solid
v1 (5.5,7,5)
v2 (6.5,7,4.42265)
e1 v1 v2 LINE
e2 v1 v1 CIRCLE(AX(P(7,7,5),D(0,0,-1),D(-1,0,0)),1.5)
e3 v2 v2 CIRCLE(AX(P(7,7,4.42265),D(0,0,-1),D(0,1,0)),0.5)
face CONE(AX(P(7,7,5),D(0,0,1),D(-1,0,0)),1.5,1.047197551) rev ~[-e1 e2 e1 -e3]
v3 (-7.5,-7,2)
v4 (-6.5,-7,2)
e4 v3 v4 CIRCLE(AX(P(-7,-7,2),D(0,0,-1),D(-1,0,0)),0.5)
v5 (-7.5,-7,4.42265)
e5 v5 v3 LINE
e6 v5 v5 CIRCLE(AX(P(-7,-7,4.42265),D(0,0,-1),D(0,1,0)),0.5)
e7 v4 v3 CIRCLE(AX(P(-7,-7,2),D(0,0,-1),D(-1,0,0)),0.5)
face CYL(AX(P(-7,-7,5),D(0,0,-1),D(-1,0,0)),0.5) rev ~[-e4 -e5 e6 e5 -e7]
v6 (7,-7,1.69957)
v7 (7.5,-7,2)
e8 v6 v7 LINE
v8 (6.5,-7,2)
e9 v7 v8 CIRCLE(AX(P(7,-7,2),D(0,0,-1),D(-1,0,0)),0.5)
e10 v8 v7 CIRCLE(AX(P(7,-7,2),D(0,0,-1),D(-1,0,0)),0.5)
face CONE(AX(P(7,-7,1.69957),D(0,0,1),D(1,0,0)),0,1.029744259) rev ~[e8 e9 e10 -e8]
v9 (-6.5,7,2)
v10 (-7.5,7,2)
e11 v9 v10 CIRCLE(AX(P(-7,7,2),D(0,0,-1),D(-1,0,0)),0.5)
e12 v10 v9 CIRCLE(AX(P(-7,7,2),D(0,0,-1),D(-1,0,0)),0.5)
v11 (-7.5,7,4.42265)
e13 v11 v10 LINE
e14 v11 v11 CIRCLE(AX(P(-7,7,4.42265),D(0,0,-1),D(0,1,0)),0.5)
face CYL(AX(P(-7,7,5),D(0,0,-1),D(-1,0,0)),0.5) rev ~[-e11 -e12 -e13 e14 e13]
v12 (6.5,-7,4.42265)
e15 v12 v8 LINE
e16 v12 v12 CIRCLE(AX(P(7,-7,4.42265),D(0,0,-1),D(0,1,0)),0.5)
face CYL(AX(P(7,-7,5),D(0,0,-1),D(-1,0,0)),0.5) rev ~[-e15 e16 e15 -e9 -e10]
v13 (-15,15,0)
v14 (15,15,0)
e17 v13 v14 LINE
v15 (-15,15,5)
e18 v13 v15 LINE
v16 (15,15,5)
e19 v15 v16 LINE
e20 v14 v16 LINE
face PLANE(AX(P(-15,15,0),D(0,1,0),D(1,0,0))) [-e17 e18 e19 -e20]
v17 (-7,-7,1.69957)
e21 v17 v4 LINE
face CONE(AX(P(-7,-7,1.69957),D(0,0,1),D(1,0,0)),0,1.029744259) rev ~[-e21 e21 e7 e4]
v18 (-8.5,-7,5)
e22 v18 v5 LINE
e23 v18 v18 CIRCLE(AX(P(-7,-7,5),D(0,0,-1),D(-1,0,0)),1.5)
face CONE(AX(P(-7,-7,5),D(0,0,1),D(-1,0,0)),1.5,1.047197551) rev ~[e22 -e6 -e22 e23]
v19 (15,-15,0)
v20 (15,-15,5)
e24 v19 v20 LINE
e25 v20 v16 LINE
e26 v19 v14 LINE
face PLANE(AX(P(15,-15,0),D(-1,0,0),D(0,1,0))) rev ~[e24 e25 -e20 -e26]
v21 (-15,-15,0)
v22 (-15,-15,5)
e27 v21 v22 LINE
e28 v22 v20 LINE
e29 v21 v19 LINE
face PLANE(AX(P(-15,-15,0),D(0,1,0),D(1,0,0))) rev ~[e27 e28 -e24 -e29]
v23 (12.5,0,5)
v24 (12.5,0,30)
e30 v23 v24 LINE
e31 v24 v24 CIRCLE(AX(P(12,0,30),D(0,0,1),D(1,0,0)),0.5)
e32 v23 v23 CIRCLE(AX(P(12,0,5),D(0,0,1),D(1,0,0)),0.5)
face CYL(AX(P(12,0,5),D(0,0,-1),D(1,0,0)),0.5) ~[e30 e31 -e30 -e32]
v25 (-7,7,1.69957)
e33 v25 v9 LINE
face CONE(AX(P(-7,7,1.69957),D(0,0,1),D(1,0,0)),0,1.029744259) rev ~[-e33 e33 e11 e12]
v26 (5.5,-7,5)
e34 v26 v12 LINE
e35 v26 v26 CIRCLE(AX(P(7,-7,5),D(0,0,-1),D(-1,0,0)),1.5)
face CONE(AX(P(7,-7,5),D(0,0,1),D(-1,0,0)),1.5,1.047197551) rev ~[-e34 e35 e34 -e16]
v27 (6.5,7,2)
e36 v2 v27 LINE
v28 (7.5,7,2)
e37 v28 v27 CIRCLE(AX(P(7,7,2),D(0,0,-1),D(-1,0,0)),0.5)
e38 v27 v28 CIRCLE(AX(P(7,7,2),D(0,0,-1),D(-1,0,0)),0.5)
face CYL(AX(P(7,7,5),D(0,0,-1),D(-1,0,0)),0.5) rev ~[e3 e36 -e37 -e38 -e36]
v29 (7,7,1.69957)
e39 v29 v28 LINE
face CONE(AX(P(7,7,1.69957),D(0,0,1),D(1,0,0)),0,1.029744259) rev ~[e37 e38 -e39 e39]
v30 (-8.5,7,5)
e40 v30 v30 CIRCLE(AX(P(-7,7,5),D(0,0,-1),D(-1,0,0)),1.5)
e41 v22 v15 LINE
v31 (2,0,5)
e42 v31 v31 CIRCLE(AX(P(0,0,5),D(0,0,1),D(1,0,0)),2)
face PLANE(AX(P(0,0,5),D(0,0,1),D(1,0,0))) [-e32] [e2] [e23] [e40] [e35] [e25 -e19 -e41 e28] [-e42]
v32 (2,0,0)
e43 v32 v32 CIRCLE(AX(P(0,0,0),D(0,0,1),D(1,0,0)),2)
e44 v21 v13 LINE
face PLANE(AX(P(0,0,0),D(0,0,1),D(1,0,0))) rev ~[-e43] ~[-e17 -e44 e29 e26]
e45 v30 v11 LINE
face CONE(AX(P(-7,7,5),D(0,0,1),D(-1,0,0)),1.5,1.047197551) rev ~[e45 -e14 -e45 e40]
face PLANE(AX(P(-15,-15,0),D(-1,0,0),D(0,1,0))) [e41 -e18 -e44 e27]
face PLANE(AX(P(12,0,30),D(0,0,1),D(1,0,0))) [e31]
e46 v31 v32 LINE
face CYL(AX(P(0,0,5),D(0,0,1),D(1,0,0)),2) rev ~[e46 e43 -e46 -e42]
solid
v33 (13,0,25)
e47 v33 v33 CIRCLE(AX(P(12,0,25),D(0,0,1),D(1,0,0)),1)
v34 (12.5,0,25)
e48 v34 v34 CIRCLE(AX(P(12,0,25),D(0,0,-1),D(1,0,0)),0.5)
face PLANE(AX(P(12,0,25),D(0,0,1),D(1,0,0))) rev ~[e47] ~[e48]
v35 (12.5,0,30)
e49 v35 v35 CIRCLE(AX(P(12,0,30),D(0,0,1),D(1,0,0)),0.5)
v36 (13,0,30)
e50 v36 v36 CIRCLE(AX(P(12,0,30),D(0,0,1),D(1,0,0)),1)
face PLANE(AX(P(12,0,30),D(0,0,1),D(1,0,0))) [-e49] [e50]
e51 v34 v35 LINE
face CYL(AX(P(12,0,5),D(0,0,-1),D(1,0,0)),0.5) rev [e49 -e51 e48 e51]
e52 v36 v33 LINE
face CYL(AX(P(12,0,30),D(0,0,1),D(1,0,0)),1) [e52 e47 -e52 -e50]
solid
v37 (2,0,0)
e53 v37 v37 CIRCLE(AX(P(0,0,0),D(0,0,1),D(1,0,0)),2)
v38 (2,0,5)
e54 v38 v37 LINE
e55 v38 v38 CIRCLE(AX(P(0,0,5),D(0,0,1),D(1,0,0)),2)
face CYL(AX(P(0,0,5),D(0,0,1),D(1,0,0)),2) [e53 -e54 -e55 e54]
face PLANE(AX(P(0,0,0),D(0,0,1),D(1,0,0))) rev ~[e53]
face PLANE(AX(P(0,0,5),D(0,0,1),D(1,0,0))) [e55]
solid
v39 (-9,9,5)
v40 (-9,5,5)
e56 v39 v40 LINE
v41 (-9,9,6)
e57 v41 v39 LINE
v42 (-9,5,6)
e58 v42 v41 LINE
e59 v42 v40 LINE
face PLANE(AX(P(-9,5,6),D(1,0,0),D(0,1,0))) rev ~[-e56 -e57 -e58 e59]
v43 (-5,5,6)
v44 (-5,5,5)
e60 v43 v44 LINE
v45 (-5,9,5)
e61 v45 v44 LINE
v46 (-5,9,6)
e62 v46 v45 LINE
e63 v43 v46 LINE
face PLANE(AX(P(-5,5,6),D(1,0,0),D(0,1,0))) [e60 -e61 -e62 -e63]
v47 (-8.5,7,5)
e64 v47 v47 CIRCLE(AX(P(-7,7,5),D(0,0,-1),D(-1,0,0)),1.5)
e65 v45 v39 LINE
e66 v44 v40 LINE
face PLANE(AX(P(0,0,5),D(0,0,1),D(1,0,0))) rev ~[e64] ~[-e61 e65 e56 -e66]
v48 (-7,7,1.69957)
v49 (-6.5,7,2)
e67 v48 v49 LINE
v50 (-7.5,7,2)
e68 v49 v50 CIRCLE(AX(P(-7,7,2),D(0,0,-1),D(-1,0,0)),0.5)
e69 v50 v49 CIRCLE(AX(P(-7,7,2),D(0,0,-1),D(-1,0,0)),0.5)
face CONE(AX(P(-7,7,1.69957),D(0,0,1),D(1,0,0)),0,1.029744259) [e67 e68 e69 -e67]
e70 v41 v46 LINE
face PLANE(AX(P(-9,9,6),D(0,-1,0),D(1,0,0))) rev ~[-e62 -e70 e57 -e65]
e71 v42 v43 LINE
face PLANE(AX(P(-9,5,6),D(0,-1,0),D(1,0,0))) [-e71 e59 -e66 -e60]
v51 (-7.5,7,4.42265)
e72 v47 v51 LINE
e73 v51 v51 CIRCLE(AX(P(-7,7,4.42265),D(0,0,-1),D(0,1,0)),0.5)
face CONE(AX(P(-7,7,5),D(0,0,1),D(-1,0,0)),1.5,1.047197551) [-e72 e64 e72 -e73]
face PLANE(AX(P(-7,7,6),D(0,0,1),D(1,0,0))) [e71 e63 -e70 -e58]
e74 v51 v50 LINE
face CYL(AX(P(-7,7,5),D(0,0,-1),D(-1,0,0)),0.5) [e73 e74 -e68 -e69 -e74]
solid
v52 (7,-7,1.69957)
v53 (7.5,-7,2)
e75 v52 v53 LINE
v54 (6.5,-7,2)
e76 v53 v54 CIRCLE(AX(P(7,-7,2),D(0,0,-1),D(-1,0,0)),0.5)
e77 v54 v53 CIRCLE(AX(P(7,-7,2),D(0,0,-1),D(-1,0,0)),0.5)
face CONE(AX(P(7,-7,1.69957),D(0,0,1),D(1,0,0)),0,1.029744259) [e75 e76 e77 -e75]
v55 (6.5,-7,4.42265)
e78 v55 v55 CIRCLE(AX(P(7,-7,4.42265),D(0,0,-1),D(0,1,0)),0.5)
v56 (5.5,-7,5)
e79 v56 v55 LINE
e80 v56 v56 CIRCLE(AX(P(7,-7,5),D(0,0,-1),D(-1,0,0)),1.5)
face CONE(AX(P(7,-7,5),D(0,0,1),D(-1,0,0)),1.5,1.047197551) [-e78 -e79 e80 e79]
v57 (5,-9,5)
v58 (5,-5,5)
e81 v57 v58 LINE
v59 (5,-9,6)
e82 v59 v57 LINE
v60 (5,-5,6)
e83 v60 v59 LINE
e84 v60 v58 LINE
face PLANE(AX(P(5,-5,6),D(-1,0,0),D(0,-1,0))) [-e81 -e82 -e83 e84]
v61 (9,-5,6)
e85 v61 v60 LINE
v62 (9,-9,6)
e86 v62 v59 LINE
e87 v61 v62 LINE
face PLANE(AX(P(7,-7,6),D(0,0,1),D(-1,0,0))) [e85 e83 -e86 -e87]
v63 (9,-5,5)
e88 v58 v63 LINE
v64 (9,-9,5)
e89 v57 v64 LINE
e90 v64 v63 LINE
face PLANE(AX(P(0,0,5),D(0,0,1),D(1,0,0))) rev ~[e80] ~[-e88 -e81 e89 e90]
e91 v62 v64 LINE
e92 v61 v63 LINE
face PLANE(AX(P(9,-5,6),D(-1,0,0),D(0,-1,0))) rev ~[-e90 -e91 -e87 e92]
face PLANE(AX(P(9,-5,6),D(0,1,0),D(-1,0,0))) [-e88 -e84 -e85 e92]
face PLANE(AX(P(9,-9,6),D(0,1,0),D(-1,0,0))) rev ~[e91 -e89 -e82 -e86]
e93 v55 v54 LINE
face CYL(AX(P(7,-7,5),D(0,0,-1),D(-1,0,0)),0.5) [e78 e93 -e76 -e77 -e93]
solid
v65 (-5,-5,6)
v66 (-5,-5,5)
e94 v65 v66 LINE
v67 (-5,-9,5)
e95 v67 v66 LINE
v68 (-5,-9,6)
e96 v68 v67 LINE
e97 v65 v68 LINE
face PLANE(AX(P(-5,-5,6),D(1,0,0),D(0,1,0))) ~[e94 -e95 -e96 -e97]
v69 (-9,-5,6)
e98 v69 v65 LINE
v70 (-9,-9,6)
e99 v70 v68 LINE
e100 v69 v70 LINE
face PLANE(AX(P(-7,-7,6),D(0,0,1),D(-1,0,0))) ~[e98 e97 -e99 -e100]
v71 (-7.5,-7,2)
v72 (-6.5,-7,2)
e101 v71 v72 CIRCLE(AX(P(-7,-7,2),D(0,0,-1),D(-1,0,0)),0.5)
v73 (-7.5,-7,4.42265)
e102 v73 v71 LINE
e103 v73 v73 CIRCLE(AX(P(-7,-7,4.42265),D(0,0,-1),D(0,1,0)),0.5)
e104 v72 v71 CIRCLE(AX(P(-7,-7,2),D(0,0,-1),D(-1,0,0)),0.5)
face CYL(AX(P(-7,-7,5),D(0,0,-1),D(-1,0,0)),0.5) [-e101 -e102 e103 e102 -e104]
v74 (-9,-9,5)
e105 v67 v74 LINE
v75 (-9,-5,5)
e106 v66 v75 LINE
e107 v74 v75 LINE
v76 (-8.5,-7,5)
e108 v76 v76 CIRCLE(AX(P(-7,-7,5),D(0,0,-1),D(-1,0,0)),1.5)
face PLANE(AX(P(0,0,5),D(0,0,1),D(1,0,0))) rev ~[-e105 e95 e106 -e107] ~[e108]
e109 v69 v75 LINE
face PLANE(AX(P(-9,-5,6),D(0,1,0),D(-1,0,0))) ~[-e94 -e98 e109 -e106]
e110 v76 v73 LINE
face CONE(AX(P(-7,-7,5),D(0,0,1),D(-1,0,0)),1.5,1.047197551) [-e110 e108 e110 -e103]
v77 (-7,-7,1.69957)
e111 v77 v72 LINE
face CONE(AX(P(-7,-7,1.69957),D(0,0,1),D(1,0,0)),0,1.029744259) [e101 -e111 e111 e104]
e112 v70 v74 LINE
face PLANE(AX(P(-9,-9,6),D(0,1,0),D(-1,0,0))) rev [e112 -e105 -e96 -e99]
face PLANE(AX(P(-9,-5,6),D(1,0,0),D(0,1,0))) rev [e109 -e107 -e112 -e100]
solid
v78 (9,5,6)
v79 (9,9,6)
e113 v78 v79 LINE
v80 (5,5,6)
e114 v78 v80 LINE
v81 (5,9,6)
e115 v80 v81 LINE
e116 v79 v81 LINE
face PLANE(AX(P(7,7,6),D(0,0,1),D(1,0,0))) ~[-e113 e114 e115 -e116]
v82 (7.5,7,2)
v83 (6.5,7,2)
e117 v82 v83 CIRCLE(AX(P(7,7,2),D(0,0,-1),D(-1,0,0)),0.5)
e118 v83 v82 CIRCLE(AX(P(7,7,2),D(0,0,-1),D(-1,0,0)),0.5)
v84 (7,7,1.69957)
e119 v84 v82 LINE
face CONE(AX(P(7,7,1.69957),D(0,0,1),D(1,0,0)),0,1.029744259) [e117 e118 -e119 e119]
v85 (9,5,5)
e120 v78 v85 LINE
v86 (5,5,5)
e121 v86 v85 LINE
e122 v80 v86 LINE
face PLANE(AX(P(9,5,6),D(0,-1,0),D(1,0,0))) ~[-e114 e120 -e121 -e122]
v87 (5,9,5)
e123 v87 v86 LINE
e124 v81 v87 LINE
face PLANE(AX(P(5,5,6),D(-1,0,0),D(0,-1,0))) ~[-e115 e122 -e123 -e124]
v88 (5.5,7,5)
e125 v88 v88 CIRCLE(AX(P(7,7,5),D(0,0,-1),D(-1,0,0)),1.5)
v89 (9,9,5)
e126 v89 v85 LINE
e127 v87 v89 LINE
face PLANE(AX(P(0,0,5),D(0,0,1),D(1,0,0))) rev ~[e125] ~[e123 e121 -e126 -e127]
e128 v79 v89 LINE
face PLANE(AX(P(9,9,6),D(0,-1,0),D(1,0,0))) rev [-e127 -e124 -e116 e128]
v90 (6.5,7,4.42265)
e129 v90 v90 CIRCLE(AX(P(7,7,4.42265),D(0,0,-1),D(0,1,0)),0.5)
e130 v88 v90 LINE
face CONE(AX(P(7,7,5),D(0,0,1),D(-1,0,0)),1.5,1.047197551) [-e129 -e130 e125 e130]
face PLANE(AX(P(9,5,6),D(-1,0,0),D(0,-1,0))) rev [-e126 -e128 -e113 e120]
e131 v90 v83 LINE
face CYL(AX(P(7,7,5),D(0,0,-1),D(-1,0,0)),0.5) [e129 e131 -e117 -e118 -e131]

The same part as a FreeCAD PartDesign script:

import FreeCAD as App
import Part
import Sketcher

V = App.Vector
Q = App.Units.Quantity

doc = App.newDocument("Part")
body = doc.addObject("PartDesign::Body", "Body")

# Sketch on XY plane
sketch1 = body.newObject("Sketcher::SketchObject", "Sketch")
sketch1.AttachmentSupport = (doc.getObject("XY_Plane"), [""])
sketch1.MapMode = "FlatFace"
sketch1.addGeometry([
    Part.LineSegment(V(-15, 15, 0), V(-15, -15, 0)),
    Part.LineSegment(V(-15, -15, 0), V(15, -15, 0)),
    Part.LineSegment(V(15, -15, 0), V(15, 15, 0)),
    Part.LineSegment(V(15, 15, 0), V(-15, 15, 0)),
], False)
sketch1.addConstraint([
    Sketcher.Constraint("Coincident", 0, 2, 1, 1),
    Sketcher.Constraint("Coincident", 1, 2, 2, 1),
    Sketcher.Constraint("Coincident", 2, 2, 3, 1),
    Sketcher.Constraint("Coincident", 3, 2, 0, 1),
    Sketcher.Constraint("Vertical", 0),
    Sketcher.Constraint("Horizontal", 1),
    Sketcher.Constraint("Vertical", 2),
    Sketcher.Constraint("Horizontal", 3),
    Sketcher.Constraint("Symmetric", 0, 2, 2, 2, -1, 1),
    Sketcher.Constraint("Equal", 3, 0),
    Sketcher.Constraint("DistanceX", 1, 1, 1, 2, Q("30 mm")),
])
pad1 = body.newObject("PartDesign::Pad", "Pad")
pad1.Profile = sketch1
pad1.Length = 5

# Sketch on XY plane
sketch2 = body.newObject("Sketcher::SketchObject", "Sketch001")
sketch2.AttachmentSupport = (doc.getObject("XY_Plane"), [""])
sketch2.MapMode = "FlatFace"
sketch2.AttachmentOffset = App.Placement(V(0, 0, 5), App.Rotation())
sketch2.addGeometry([
    Part.Circle(V(-7, 7, 0), V(0, 0, 1), 0.5),
    Part.Circle(V(-7, -7, 0), V(0, 0, 1), 0.5),
    Part.Circle(V(7, -7, 0), V(0, 0, 1), 0.5),
    Part.Circle(V(7, 7, 0), V(0, 0, 1), 0.5),
], False)
sketch2.addConstraint([
    Sketcher.Constraint("Equal", 0, 1),
    Sketcher.Constraint("Equal", 1, 2),
    Sketcher.Constraint("Equal", 2, 3),
    Sketcher.Constraint("Symmetric", 0, 3, 2, 3, -1, 1),
    Sketcher.Constraint("Symmetric", 1, 3, 3, 3, -1, 1),
    Sketcher.Constraint("Symmetric", 1, 3, 2, 3, -2),
    Sketcher.Constraint("Diameter", 0, Q("1 mm")),
    Sketcher.Constraint("DistanceX", 0, 3, -1, 1, Q("7 mm")),
    Sketcher.Constraint("DistanceY", -1, 1, 0, 3, Q("7 mm")),
])
doc.recompute()
hole = body.newObject("PartDesign::Hole", "Hole")
hole.Profile = sketch2
hole.ThreadType = "None"
hole.Diameter = 1
hole.DepthType = "Dimension"
hole.Depth = 3
hole.DrillPoint = "Angled"
hole.DrillPointAngle = 118
hole.HoleCutType = "Countersink"
hole.HoleCutDiameter = 3
hole.HoleCutCountersinkAngle = 120
body2 = doc.addObject("PartDesign::Body", "Body001")

# Sketch on XY plane
sketch3 = body2.newObject("Sketcher::SketchObject", "Sketch002")
sketch3.AttachmentSupport = (doc.getObject("XY_Plane001"), [""])
sketch3.MapMode = "FlatFace"
sketch3.AttachmentOffset = App.Placement(V(0, 0, 6), App.Rotation())
sketch3.addGeometry([
    Part.LineSegment(V(-9, 9, 0), V(-9, 5, 0)),
    Part.LineSegment(V(-9, 5, 0), V(-5, 5, 0)),
    Part.LineSegment(V(-5, 5, 0), V(-5, 9, 0)),
    Part.LineSegment(V(-5, 9, 0), V(-9, 9, 0)),
], False)
sketch3.addConstraint([
    Sketcher.Constraint("Coincident", 0, 2, 1, 1),
    Sketcher.Constraint("Coincident", 1, 2, 2, 1),
    Sketcher.Constraint("Coincident", 2, 2, 3, 1),
    Sketcher.Constraint("Coincident", 3, 2, 0, 1),
    Sketcher.Constraint("Vertical", 0),
    Sketcher.Constraint("Horizontal", 1),
    Sketcher.Constraint("Vertical", 2),
    Sketcher.Constraint("Horizontal", 3),
    Sketcher.Constraint("Equal", 3, 0),
    Sketcher.Constraint("DistanceX", 1, 1, 1, 2, Q("4 mm")),
    Sketcher.Constraint("DistanceX", 0, 2, -1, 1, Q("9 mm")),
    Sketcher.Constraint("DistanceY", -1, 1, 0, 2, Q("5 mm")),
])
pad2 = body2.newObject("PartDesign::Pad", "Pad001")
pad2.Profile = sketch3
pad2.Length = 6
pad2.Reversed = True
body3 = doc.addObject("PartDesign::Body", "Body002")
doc.recompute()

mirroring = doc.addObject("Part::Mirroring", "Mirroring")
mirroring.Source = body2
mirroring.Base = V(0, 0, 0)
mirroring.Normal = V(1, 0, 0)
body3.BaseFeature = mirroring
doc.recompute()
body4 = doc.addObject("PartDesign::Body", "Body003")
doc.recompute()

mirroring2 = doc.addObject("Part::Mirroring", "Mirroring001")
mirroring2.Source = body2
mirroring2.Base = V(0, 0, 0)
mirroring2.Normal = V(0, -1, 0)
body4.BaseFeature = mirroring2
doc.recompute()

body5 = doc.addObject("PartDesign::Body", "Body004")
body5.BaseFeature = body
boolean = body4.newObject("PartDesign::Boolean", "Boolean")
boolean.Type = "Cut"
boolean.addObjects([body5])
doc.recompute()
body6 = doc.addObject("PartDesign::Body", "Body005")
doc.recompute()

mirroring3 = doc.addObject("Part::Mirroring", "Mirroring002")
mirroring3.Source = body3
mirroring3.Base = V(0, 0, 0)
mirroring3.Normal = V(0, -1, 0)
body6.BaseFeature = mirroring3
doc.recompute()

body7 = doc.addObject("PartDesign::Body", "Body006")
body7.BaseFeature = body
boolean2 = body6.newObject("PartDesign::Boolean", "Boolean001")
boolean2.Type = "Cut"
boolean2.addObjects([body7])
doc.recompute()

body8 = doc.addObject("PartDesign::Body", "Body007")
body8.BaseFeature = body
boolean3 = body2.newObject("PartDesign::Boolean", "Boolean002")
boolean3.Type = "Cut"
boolean3.addObjects([body8])
doc.recompute()

body9 = doc.addObject("PartDesign::Body", "Body008")
body9.BaseFeature = body
boolean4 = body3.newObject("PartDesign::Boolean", "Boolean003")
boolean4.Type = "Cut"
boolean4.addObjects([body9])
doc.recompute()

# Sketch on XY plane
sketch4 = body.newObject("Sketcher::SketchObject", "Sketch003")
sketch4.AttachmentSupport = (doc.getObject("XY_Plane"), [""])
sketch4.MapMode = "FlatFace"
sketch4.AttachmentOffset = App.Placement(V(0, 0, 5), App.Rotation())
sketch4.addGeometry(Part.Circle(V(12, 0, 0), V(0, 0, 1), 0.5), False)
sketch4.addConstraint([
    Sketcher.Constraint("PointOnObject", 0, 3, -1),
    Sketcher.Constraint("Diameter", 0, Q("1 mm")),
    Sketcher.Constraint("DistanceX", -1, 1, 0, 3, Q("12 mm")),
])
pad3 = body.newObject("PartDesign::Pad", "Pad002")
pad3.Profile = sketch4
pad3.Length = 25
body10 = doc.addObject("PartDesign::Body", "Body009")

# Sketch on XY plane
sketch5 = body10.newObject("Sketcher::SketchObject", "Sketch004")
sketch5.AttachmentSupport = (doc.getObject("XY_Plane009"), [""])
sketch5.MapMode = "FlatFace"
sketch5.AttachmentOffset = App.Placement(V(0, 0, 30), App.Rotation())
sketch5.addGeometry(Part.Circle(V(12, 0, 0), V(0, 0, 1), 1), False)
sketch5.addConstraint([
    Sketcher.Constraint("PointOnObject", 0, 3, -1),
    Sketcher.Constraint("Diameter", 0, Q("2 mm")),
    Sketcher.Constraint("DistanceX", -1, 1, 0, 3, Q("12 mm")),
])
pad4 = body10.newObject("PartDesign::Pad", "Pad003")
pad4.Profile = sketch5
pad4.Length = 5
pad4.Reversed = True
doc.recompute()

body11 = doc.addObject("PartDesign::Body", "Body010")
body11.BaseFeature = body
boolean5 = body10.newObject("PartDesign::Boolean", "Boolean004")
boolean5.Type = "Cut"
boolean5.addObjects([body11])
doc.recompute()
body12 = doc.addObject("PartDesign::Body", "Body011")

# Sketch on XY plane
sketch6 = body12.newObject("Sketcher::SketchObject", "Sketch005")
sketch6.AttachmentSupport = (doc.getObject("XY_Plane011"), [""])
sketch6.MapMode = "FlatFace"
sketch6.AttachmentOffset = App.Placement(V(0, 0, 5), App.Rotation())
sketch6.addGeometry(Part.Circle(V(0, 0, 0), V(0, 0, 1), 2), False)
sketch6.addConstraint([
    Sketcher.Constraint("Coincident", 0, 3, -1, 1),
    Sketcher.Constraint("Diameter", 0, Q("4 mm")),
])
pad5 = body12.newObject("PartDesign::Pad", "Pad004")
pad5.Profile = sketch6
pad5.Length = 5
pad5.Reversed = True
doc.recompute()

body13 = doc.addObject("PartDesign::Body", "Body012")
body13.BaseFeature = body12
boolean6 = body.newObject("PartDesign::Boolean", "Boolean005")
boolean6.Type = "Cut"
boolean6.addObjects([body13])
doc.recompute()

doc.recompute()
